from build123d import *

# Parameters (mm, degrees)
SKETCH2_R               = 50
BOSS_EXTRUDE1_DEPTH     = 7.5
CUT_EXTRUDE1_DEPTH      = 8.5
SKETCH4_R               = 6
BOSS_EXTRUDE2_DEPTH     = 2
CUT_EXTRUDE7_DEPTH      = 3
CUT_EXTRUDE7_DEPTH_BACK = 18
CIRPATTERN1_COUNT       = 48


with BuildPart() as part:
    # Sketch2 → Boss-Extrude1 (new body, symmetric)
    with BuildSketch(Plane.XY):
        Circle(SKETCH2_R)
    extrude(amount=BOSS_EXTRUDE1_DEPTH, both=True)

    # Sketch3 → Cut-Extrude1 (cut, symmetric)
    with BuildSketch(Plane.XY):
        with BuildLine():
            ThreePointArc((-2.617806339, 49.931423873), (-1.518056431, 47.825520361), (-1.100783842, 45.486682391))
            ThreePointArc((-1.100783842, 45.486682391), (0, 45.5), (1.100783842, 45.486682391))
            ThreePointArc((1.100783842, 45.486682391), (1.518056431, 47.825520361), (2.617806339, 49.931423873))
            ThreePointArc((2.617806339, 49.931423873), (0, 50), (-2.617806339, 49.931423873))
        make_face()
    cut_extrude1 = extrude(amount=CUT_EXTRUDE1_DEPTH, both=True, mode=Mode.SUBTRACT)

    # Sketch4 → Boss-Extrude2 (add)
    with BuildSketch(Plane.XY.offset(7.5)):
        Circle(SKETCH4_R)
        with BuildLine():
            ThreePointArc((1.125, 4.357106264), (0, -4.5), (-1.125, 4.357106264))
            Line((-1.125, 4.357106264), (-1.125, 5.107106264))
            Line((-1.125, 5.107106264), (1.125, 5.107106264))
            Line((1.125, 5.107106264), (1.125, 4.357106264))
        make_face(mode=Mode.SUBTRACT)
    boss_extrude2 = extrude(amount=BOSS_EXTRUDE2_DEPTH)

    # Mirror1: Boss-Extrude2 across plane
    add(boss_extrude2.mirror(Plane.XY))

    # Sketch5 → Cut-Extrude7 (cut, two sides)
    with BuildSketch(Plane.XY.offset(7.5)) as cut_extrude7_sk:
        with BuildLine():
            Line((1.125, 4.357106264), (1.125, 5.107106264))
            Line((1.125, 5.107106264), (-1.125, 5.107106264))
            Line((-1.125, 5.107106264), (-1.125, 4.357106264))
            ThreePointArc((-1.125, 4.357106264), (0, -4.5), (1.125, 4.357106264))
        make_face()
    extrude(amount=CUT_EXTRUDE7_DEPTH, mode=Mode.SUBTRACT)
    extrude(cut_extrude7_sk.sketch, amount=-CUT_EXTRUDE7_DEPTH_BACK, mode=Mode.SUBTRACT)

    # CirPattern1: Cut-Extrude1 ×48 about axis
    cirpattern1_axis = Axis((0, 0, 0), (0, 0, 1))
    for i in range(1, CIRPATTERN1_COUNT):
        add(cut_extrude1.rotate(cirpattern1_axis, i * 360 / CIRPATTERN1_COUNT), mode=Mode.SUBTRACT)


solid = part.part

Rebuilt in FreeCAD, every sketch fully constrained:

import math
import FreeCAD as App
import Part
import Sketcher
from FreeCAD import Vector

doc = App.newDocument("Part")
params = doc.addObject("Spreadsheet::Sheet", "Params")
for row, (alias, value) in enumerate([
    ("sketch1_diameter", "100 mm"),
    ("pad1_length", "15 mm"),
    ("sketch2_radius", "50 mm"),
    ("sketch2_radius2", "45.5 mm"),
    ("pocket1_length", "17 mm"),
    ("sketch3_diameter", "12 mm"),
    ("sketch3_radius", "4.5 mm"),
    ("sketch3_width", "2.25 mm"),
    ("sketch3_height", "0.75 mm"),
    ("pad2_length", "2 mm"),
    ("sketch4_radius", "4.5 mm"),
    ("sketch4_width", "2.25 mm"),
    ("sketch4_height", "0.75 mm"),
], start=1):
    params.set(f"A{row}", alias)
    params.set(f"B{row}", "=" + value)
    params.setAlias(f"B{row}", alias)

body = doc.addObject("PartDesign::Body", "Body")

sketch1 = doc.addObject("Sketcher::SketchObject", "Sketch")
body.addObject(sketch1)
sketch1.AttachmentSupport = (doc.XY_Plane, [""])
sketch1.MapMode = "FlatFace"
sketch1.addGeometry(Part.Circle(Vector(0, 0, 0), Vector(0, 0, 1), 50), False)
sketch1.addConstraint([
    Sketcher.Constraint("Coincident", 0, 3, -1, 1),
    Sketcher.Constraint("Diameter", 0, 100.0),
])
sketch1.setExpression("Constraints[1]", "Params.sketch1_diameter")
pad1 = doc.addObject("PartDesign::Pad", "Pad")
body.addObject(pad1)
pad1.Profile = sketch1
pad1.setExpression("Length", "Params.pad1_length")
pad1.Midplane = True

sketch2 = doc.addObject("Sketcher::SketchObject", "Sketch001")
body.addObject(sketch2)
sketch2.AttachmentSupport = (doc.XY_Plane, [""])
sketch2.MapMode = "FlatFace"
sketch2.addGeometry([
    Part.ArcOfCircle(Part.Circle(Vector(-8.9, 45.3, 0), Vector(0, 0, 1), 7.8), math.radians(1), math.radians(36)),
    Part.ArcOfCircle(Part.Circle(Vector(0, 0, 0), Vector(0, 0, 1), 45.5), math.radians(88.61), math.radians(91.39)),
    Part.ArcOfCircle(Part.Circle(Vector(8.9, 45.3, 0), Vector(0, 0, 1), 7.8), math.radians(144), math.radians(179)),
    Part.ArcOfCircle(Part.Circle(Vector(0, 0, 0), Vector(0, 0, 1), 50), math.radians(87), math.radians(93)),
], False)
sketch2.addConstraint([
    Sketcher.Constraint("Coincident", 0, 1, 1, 2),
    Sketcher.Constraint("Coincident", 1, 1, 2, 2),
    Sketcher.Constraint("Coincident", 2, 1, 3, 1),
    Sketcher.Constraint("Coincident", 3, 2, 0, 2),
    Sketcher.Constraint("Coincident", 1, 3, -1, 1),
    Sketcher.Constraint("Coincident", 3, 3, -1, 1),
    Sketcher.Constraint("Equal", 0, 2),
    Sketcher.Constraint("Symmetric", 0, 3, 2, 3, -2),
    Sketcher.Constraint("Radius", 3, 50.0),
    Sketcher.Constraint("Radius", 1, 45.5),
    Sketcher.Constraint("Radius", 0, 7.826953),
    Sketcher.Constraint("DistanceY", 2, 3, 2, 1, 4.634099),
    Sketcher.Constraint("DistanceX", 0, 1, 2, 3, 10.02623),
])
sketch2.setExpression("Constraints[8]", "Params.sketch2_radius")
sketch2.setExpression("Constraints[9]", "Params.sketch2_radius2")
pocket1 = doc.addObject("PartDesign::Pocket", "Pocket")
body.addObject(pocket1)
pocket1.Profile = sketch2
pocket1.setExpression("Length", "Params.pocket1_length")
pocket1.Midplane = True

sketch3 = doc.addObject("Sketcher::SketchObject", "Sketch002")
body.addObject(sketch3)
sketch3.AttachmentSupport = (doc.XY_Plane, [""])
sketch3.MapMode = "FlatFace"
sketch3.AttachmentOffset = App.Placement(Vector(0, 0, 7.5), App.Rotation())
sketch3.addGeometry([
    Part.Circle(Vector(0, 0, 0), Vector(0, 0, 1), 6),
    Part.LineSegment(Vector(1.1, 5.1, 0), Vector(1.1, 4.4, 0)),
    Part.ArcOfCircle(Part.Circle(Vector(0, 0, 0), Vector(0, 0, 1), 4.5), math.radians(104), math.radians(436)),
    Part.LineSegment(Vector(-1.1, 4.4, 0), Vector(-1.1, 5.1, 0)),
    Part.LineSegment(Vector(-1.1, 5.1, 0), Vector(1.1, 5.1, 0)),
], False)
sketch3.addConstraint([
    Sketcher.Constraint("Coincident", 1, 2, 2, 2),
    Sketcher.Constraint("Coincident", 2, 1, 3, 1),
    Sketcher.Constraint("Coincident", 3, 2, 4, 1),
    Sketcher.Constraint("Coincident", 4, 2, 1, 1),
    Sketcher.Constraint("Vertical", 1),
    Sketcher.Constraint("Vertical", 3),
    Sketcher.Constraint("Horizontal", 4),
    Sketcher.Constraint("Coincident", 0, 3, -1, 1),
    Sketcher.Constraint("Coincident", 2, 3, -1, 1),
    Sketcher.Constraint("Horizontal", 1, 2, 2, 1),
    Sketcher.Constraint("Diameter", 0, 12.0),
    Sketcher.Constraint("Radius", 2, 4.5),
    Sketcher.Constraint("DistanceX", 4, 1, 4, 2, 2.25),
    Sketcher.Constraint("DistanceY", 1, 2, 1, 1, 0.75),
])
sketch3.setExpression("Constraints[10]", "Params.sketch3_diameter")
sketch3.setExpression("Constraints[11]", "Params.sketch3_radius")
sketch3.setExpression("Constraints[12]", "Params.sketch3_width")
sketch3.setExpression("Constraints[13]", "Params.sketch3_height")
pad2 = doc.addObject("PartDesign::Pad", "Pad001")
body.addObject(pad2)
pad2.Profile = sketch3
pad2.setExpression("Length", "Params.pad2_length")
doc.recompute()

mirrored = doc.addObject("PartDesign::Mirrored", "Mirrored")
body.addObject(mirrored)
mirrored.Originals = [pad2]
mirrored.MirrorPlane = (doc.XY_Plane, [""])
body.Tip = mirrored

sketch4 = doc.addObject("Sketcher::SketchObject", "Sketch003")
body.addObject(sketch4)
sketch4.AttachmentSupport = (doc.XY_Plane, [""])
sketch4.MapMode = "FlatFace"
sketch4.AttachmentOffset = App.Placement(Vector(0, 0, 7.5), App.Rotation())
sketch4.addGeometry([
    Part.LineSegment(Vector(1.1, 4.4, 0), Vector(1.1, 5.1, 0)),
    Part.LineSegment(Vector(1.1, 5.1, 0), Vector(-1.1, 5.1, 0)),
    Part.LineSegment(Vector(-1.1, 5.1, 0), Vector(-1.1, 4.4, 0)),
    Part.ArcOfCircle(Part.Circle(Vector(0, 0, 0), Vector(0, 0, 1), 4.5), math.radians(104), math.radians(436)),
], False)
sketch4.addConstraint([
    Sketcher.Constraint("Coincident", 0, 2, 1, 1),
    Sketcher.Constraint("Coincident", 1, 2, 2, 1),
    Sketcher.Constraint("Coincident", 2, 2, 3, 1),
    Sketcher.Constraint("Coincident", 3, 2, 0, 1),
    Sketcher.Constraint("Vertical", 0),
    Sketcher.Constraint("Horizontal", 1),
    Sketcher.Constraint("Vertical", 2),
    Sketcher.Constraint("Coincident", 3, 3, -1, 1),
    Sketcher.Constraint("Horizontal", 2, 2, 3, 2),
    Sketcher.Constraint("Radius", 3, 4.5),
    Sketcher.Constraint("DistanceX", 1, 2, 1, 1, 2.25),
    Sketcher.Constraint("DistanceY", 0, 1, 0, 2, 0.75),
])
sketch4.setExpression("Constraints[9]", "Params.sketch4_radius")
sketch4.setExpression("Constraints[10]", "Params.sketch4_width")
sketch4.setExpression("Constraints[11]", "Params.sketch4_height")
pocket2 = doc.addObject("PartDesign::Pocket", "Pocket001")
body.addObject(pocket2)
pocket2.Profile = sketch4
pocket2.Type = "ThroughAll"
pocket2.Midplane = True
doc.recompute()

polarpattern = doc.addObject("PartDesign::PolarPattern", "PolarPattern")
body.addObject(polarpattern)
polarpattern.Originals = [pocket1]
polarpattern.Axis = (doc.Z_Axis, [""])
polarpattern.Angle = 360
polarpattern.Occurrences = 48
body.Tip = polarpattern

doc.recompute()
